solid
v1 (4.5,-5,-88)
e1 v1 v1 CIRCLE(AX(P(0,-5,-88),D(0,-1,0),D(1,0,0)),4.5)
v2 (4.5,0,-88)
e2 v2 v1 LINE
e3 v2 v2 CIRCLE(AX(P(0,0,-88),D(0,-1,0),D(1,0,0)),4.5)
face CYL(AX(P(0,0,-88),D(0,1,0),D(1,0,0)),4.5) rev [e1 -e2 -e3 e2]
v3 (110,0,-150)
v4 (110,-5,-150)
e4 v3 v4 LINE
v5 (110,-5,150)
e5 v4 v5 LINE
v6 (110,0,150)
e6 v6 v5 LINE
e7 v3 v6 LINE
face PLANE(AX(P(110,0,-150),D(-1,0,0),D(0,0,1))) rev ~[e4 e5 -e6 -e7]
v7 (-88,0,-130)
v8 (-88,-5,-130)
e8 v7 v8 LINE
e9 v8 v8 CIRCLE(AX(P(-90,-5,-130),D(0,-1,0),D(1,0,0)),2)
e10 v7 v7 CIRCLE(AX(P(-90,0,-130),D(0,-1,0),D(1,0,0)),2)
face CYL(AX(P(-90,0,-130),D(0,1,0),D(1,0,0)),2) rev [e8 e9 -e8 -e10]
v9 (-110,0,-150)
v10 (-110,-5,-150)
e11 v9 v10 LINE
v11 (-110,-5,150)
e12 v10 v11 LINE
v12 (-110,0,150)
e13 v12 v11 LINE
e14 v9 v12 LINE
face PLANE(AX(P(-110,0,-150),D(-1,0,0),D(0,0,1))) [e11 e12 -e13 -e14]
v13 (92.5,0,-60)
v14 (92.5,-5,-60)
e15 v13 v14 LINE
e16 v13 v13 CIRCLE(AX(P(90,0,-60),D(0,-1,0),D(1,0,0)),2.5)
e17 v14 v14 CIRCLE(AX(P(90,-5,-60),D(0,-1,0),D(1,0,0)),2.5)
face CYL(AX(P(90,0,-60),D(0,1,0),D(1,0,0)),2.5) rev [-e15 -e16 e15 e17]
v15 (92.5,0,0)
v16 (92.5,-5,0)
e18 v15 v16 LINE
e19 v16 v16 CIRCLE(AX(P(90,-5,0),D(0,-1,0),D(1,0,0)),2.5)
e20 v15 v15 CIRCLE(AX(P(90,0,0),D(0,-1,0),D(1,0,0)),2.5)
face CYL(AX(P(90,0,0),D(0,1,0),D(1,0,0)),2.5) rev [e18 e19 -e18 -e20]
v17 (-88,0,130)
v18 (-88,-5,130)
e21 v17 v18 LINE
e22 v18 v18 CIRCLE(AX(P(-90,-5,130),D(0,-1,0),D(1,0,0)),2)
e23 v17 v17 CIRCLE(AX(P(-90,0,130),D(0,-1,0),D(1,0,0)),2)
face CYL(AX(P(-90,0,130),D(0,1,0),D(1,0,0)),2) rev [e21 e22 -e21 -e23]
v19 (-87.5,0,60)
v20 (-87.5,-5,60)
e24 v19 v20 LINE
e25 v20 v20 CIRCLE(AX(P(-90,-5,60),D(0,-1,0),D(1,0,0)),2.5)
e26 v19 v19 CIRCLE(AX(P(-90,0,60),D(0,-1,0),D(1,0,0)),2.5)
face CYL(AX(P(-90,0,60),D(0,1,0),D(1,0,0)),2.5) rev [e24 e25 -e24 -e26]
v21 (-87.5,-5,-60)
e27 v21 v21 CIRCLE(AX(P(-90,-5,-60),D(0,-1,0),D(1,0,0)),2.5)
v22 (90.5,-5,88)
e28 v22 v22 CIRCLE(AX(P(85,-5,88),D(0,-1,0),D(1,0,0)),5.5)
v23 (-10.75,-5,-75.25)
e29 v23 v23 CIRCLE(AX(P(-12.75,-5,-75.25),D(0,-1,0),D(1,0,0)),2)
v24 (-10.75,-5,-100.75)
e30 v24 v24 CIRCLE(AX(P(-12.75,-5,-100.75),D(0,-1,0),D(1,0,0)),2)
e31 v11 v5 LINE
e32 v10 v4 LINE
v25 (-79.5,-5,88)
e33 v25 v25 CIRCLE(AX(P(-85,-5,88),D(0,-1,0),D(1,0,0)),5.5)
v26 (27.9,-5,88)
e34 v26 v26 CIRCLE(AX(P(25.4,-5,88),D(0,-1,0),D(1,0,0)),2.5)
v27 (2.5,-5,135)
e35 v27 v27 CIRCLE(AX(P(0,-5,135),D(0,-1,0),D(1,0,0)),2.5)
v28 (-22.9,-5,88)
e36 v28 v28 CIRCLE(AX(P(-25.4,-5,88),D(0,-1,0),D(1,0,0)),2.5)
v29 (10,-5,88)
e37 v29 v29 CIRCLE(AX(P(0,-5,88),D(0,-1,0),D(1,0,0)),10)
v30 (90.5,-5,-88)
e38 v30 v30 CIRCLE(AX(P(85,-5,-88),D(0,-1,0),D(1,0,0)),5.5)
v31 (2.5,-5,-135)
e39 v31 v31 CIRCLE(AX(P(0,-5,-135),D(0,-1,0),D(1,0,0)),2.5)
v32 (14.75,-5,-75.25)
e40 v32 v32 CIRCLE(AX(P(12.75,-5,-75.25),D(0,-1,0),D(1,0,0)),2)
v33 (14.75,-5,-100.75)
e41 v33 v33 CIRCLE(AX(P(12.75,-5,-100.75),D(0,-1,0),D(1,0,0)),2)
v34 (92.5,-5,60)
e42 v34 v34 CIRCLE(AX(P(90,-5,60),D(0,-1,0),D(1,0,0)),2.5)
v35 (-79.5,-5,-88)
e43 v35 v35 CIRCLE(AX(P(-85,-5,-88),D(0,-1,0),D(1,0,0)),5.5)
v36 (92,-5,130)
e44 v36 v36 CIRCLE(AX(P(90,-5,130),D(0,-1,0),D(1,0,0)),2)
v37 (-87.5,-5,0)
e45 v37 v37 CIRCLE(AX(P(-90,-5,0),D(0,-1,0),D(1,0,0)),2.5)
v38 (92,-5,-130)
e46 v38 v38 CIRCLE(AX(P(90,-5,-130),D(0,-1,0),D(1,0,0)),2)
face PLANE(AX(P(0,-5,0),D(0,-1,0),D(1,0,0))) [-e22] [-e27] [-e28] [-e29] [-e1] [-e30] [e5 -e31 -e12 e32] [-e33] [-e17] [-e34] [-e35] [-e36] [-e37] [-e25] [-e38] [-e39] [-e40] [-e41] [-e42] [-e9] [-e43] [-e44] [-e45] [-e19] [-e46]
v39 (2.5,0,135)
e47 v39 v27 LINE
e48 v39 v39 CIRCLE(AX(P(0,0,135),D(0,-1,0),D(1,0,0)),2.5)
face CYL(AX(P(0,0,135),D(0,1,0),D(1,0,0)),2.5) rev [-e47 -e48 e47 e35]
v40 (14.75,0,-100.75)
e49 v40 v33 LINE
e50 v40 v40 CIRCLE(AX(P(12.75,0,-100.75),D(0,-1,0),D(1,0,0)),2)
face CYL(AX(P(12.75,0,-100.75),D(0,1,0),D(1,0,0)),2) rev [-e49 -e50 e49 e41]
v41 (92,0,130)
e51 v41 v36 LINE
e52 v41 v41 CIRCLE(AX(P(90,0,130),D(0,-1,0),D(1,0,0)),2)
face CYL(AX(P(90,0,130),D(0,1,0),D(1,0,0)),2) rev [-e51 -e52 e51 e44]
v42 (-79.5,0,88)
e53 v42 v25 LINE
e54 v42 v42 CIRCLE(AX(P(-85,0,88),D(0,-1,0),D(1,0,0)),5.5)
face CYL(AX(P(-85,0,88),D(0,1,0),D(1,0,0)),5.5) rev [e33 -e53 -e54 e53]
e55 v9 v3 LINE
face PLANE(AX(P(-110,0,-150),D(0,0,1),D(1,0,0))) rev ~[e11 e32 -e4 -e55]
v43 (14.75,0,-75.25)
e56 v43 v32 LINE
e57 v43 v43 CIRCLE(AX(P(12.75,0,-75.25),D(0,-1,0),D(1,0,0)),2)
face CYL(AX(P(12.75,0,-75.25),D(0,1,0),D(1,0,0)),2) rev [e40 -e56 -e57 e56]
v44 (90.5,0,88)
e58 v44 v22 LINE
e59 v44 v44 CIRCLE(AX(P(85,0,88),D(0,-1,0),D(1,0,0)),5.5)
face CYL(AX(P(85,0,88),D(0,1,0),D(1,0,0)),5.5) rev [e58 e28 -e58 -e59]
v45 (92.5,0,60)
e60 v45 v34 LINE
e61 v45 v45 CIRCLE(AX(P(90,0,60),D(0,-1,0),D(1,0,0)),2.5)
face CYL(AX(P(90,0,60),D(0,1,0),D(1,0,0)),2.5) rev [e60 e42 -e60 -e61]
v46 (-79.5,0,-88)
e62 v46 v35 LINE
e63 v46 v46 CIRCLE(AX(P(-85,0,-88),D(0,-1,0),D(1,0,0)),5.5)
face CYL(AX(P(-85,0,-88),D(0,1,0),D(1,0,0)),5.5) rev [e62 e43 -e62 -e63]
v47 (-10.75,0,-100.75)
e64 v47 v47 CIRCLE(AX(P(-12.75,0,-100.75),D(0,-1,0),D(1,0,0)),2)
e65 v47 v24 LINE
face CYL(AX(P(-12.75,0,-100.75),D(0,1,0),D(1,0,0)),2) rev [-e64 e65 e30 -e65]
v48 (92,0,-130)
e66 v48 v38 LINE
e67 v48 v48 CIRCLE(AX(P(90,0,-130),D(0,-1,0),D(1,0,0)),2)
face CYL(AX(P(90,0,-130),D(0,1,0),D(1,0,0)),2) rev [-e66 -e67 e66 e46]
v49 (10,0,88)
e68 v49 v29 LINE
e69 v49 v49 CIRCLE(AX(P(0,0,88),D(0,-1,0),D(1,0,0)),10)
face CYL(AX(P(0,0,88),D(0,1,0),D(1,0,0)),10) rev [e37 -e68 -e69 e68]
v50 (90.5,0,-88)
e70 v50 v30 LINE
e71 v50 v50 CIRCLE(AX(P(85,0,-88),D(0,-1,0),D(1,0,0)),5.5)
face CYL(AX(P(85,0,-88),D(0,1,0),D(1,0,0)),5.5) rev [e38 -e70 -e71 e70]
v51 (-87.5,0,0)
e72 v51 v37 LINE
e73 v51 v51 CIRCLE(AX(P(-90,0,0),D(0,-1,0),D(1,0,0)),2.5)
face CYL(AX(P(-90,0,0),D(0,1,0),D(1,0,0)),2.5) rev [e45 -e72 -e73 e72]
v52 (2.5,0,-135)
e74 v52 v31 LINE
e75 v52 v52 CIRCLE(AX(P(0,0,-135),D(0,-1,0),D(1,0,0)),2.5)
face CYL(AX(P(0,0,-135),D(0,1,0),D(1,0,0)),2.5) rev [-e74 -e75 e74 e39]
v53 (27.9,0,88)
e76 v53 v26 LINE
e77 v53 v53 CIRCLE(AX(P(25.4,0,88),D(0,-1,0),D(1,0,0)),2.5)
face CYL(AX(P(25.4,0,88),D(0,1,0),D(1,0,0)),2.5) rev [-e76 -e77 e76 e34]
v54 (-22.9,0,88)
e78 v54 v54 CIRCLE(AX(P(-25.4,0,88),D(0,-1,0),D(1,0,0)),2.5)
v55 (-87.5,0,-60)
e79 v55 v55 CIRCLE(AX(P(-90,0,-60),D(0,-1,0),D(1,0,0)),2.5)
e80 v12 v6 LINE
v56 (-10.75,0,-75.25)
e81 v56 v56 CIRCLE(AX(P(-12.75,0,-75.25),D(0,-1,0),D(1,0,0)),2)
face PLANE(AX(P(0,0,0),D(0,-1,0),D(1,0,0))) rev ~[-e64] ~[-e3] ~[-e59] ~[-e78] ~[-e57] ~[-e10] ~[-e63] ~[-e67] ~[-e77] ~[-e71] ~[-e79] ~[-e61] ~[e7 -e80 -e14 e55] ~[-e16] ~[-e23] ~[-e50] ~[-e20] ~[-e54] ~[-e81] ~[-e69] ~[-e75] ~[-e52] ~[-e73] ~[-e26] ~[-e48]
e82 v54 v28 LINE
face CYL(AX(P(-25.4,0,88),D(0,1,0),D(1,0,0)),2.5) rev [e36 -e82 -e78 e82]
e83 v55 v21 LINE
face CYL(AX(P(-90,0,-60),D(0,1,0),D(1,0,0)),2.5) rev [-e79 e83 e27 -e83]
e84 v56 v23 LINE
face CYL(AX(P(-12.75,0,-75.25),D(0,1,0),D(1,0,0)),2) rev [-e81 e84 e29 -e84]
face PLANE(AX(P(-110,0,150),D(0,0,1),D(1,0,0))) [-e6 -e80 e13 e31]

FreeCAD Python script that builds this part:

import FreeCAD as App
import Part
import Sketcher

doc = App.newDocument("Part")
body = doc.addObject("PartDesign::Body", "Body")

# Sketch on XZ plane
sketch1 = body.newObject("Sketcher::SketchObject", "Sketch")
sketch1.AttachmentSupport = (doc.getObject("XZ_Plane"), [""])
sketch1.MapMode = "FlatFace"
sketch1.addGeometry(Part.LineSegment(App.Vector(-110, 150, 0), App.Vector(-110, -150, 0)), False)
sketch1.addGeometry(Part.LineSegment(App.Vector(-110, -150, 0), App.Vector(110, -150, 0)), False)
sketch1.addGeometry(Part.LineSegment(App.Vector(110, -150, 0), App.Vector(110, 150, 0)), False)
sketch1.addGeometry(Part.LineSegment(App.Vector(110, 150, 0), App.Vector(-110, 150, 0)), False)
sketch1.addGeometry(Part.Circle(App.Vector(-90, -130, 0), App.Vector(0, 0, 1), 2), False)
sketch1.addGeometry(Part.Circle(App.Vector(-85, -88, 0), App.Vector(0, 0, 1), 5.5), False)
sketch1.addGeometry(Part.Circle(App.Vector(-12.75, -100.75, 0), App.Vector(0, 0, 1), 2), False)
sketch1.addGeometry(Part.Circle(App.Vector(-12.75, -75.25, 0), App.Vector(0, 0, 1), 2), False)
sketch1.addGeometry(Part.Circle(App.Vector(-90, -60, 0), App.Vector(0, 0, 1), 2.5), False)
sketch1.addGeometry(Part.Circle(App.Vector(0, -135, 0), App.Vector(0, 0, 1), 2.5), False)
sketch1.addGeometry(Part.Circle(App.Vector(0, -88, 0), App.Vector(0, 0, 1), 4.5), False)
sketch1.addGeometry(Part.Circle(App.Vector(12.75, -100.75, 0), App.Vector(0, 0, 1), 2), False)
sketch1.addGeometry(Part.Circle(App.Vector(12.75, -75.25, 0), App.Vector(0, 0, 1), 2), False)
sketch1.addGeometry(Part.Circle(App.Vector(90, -130, 0), App.Vector(0, 0, 1), 2), False)
sketch1.addGeometry(Part.Circle(App.Vector(85, -88, 0), App.Vector(0, 0, 1), 5.5), False)
sketch1.addGeometry(Part.Circle(App.Vector(90, -60, 0), App.Vector(0, 0, 1), 2.5), False)
sketch1.addGeometry(Part.Circle(App.Vector(-90, 0, 0), App.Vector(0, 0, 1), 2.5), False)
sketch1.addGeometry(Part.Circle(App.Vector(-90, 60, 0), App.Vector(0, 0, 1), 2.5), False)
sketch1.addGeometry(Part.Circle(App.Vector(-85, 88, 0), App.Vector(0, 0, 1), 5.5), False)
sketch1.addGeometry(Part.Circle(App.Vector(-90, 130, 0), App.Vector(0, 0, 1), 2), False)
sketch1.addGeometry(Part.Circle(App.Vector(-25.4, 88, 0), App.Vector(0, 0, 1), 2.5), False)
sketch1.addGeometry(Part.Circle(App.Vector(90, 0, 0), App.Vector(0, 0, 1), 2.5), False)
sketch1.addGeometry(Part.Circle(App.Vector(90, 60, 0), App.Vector(0, 0, 1), 2.5), False)
sketch1.addGeometry(Part.Circle(App.Vector(0, 88, 0), App.Vector(0, 0, 1), 10), False)
sketch1.addGeometry(Part.Circle(App.Vector(25.4, 88, 0), App.Vector(0, 0, 1), 2.5), False)
sketch1.addGeometry(Part.Circle(App.Vector(0, 135, 0), App.Vector(0, 0, 1), 2.5), False)
sketch1.addGeometry(Part.Circle(App.Vector(85, 88, 0), App.Vector(0, 0, 1), 5.5), False)
sketch1.addGeometry(Part.Circle(App.Vector(90, 130, 0), App.Vector(0, 0, 1), 2), False)
sketch1.addConstraint(Sketcher.Constraint("Coincident", 0, 2, 1, 1))
sketch1.addConstraint(Sketcher.Constraint("Coincident", 1, 2, 2, 1))
sketch1.addConstraint(Sketcher.Constraint("Coincident", 2, 2, 3, 1))
sketch1.addConstraint(Sketcher.Constraint("Coincident", 3, 2, 0, 1))
sketch1.addConstraint(Sketcher.Constraint("Vertical", 0))
sketch1.addConstraint(Sketcher.Constraint("Horizontal", 1))
sketch1.addConstraint(Sketcher.Constraint("Vertical", 2))
sketch1.addConstraint(Sketcher.Constraint("Horizontal", 3))
sketch1.addConstraint(Sketcher.Constraint("Equal", 4, 6))
sketch1.addConstraint(Sketcher.Constraint("Equal", 6, 7))
sketch1.addConstraint(Sketcher.Constraint("Equal", 8, 9))
sketch1.addConstraint(Sketcher.Constraint("Equal", 7, 11))
sketch1.addConstraint(Sketcher.Constraint("Equal", 11, 12))
sketch1.addConstraint(Sketcher.Constraint("Equal", 12, 13))
sketch1.addConstraint(Sketcher.Constraint("Equal", 5, 14))
sketch1.addConstraint(Sketcher.Constraint("Equal", 9, 15))
sketch1.addConstraint(Sketcher.Constraint("Equal", 15, 16))
sketch1.addConstraint(Sketcher.Constraint("Equal", 16, 17))
sketch1.addConstraint(Sketcher.Constraint("Equal", 14, 18))
sketch1.addConstraint(Sketcher.Constraint("Equal", 13, 19))
sketch1.addConstraint(Sketcher.Constraint("Equal", 17, 20))
sketch1.addConstraint(Sketcher.Constraint("Equal", 20, 21))
sketch1.addConstraint(Sketcher.Constraint("Equal", 21, 22))
sketch1.addConstraint(Sketcher.Constraint("Equal", 22, 24))
sketch1.addConstraint(Sketcher.Constraint("Equal", 24, 25))
sketch1.addConstraint(Sketcher.Constraint("Equal", 18, 26))
sketch1.addConstraint(Sketcher.Constraint("Equal", 19, 27))
sketch1.addConstraint(Sketcher.Constraint("Symmetric", 15, 3, 17, 3, -1, 1))
sketch1.addConstraint(Sketcher.Constraint("Symmetric", 14, 3, 18, 3, -1, 1))
sketch1.addConstraint(Sketcher.Constraint("Symmetric", 13, 3, 19, 3, -1, 1))
sketch1.addConstraint(Sketcher.Constraint("Symmetric", 16, 3, 21, 3, -1, 1))
sketch1.addConstraint(Sketcher.Constraint("Symmetric", 8, 3, 22, 3, -1, 1))
sketch1.addConstraint(Sketcher.Constraint("Symmetric", 10, 3, 23, 3, -1, 1))
sketch1.addConstraint(Sketcher.Constraint("Symmetric", 9, 3, 25, 3, -1, 1))
sketch1.addConstraint(Sketcher.Constraint("Symmetric", 5, 3, 26, 3, -1, 1))
sketch1.addConstraint(Sketcher.Constraint("Symmetric", 4, 3, 27, 3, -1, 1))
sketch1.addConstraint(Sketcher.Constraint("Symmetric", 0, 2, 2, 2, -1, 1))
sketch1.addConstraint(Sketcher.Constraint("Symmetric", 6, 3, 11, 3, -2))
sketch1.addConstraint(Sketcher.Constraint("Symmetric", 7, 3, 12, 3, -2))
sketch1.addConstraint(Sketcher.Constraint("Symmetric", 4, 3, 13, 3, -2))
sketch1.addConstraint(Sketcher.Constraint("Symmetric", 5, 3, 14, 3, -2))
sketch1.addConstraint(Sketcher.Constraint("Symmetric", 8, 3, 15, 3, -2))
sketch1.addConstraint(Sketcher.Constraint("Symmetric", 20, 3, 24, 3, -2))
sketch1.addConstraint(Sketcher.Constraint("PointOnObject", 9, 3, -2))
sketch1.addConstraint(Sketcher.Constraint("PointOnObject", 10, 3, -2))
sketch1.addConstraint(Sketcher.Constraint("PointOnObject", 16, 3, -1))
sketch1.addConstraint(Sketcher.Constraint("Horizontal", 5, 3, 10, 3))
sketch1.addConstraint(Sketcher.Constraint("Horizontal", 18, 3, 20, 3))
sketch1.addConstraint(Sketcher.Constraint("Vertical", 6, 3, 7, 3))
sketch1.addConstraint(Sketcher.Constraint("Vertical", 4, 3, 8, 3))
sketch1.addConstraint(Sketcher.Constraint("Vertical", 8, 3, 16, 3))
sketch1.addConstraint(Sketcher.Constraint("Diameter", 4, 4.0))
sketch1.addConstraint(Sketcher.Constraint("Diameter", 5, 11.0))
sketch1.addConstraint(Sketcher.Constraint("Diameter", 8, 5.0))
sketch1.addConstraint(Sketcher.Constraint("Diameter", 10, 9.0))
sketch1.addConstraint(Sketcher.Constraint("Diameter", 23, 20.0))
sketch1.addConstraint(Sketcher.Constraint("DistanceX", 1, 1, 1, 2, 220.0))
sketch1.addConstraint(Sketcher.Constraint("DistanceY", 0, 2, 0, 1, 300.0))
sketch1.addConstraint(Sketcher.Constraint("DistanceX", 4, 3, -1, 1, 90.0))
sketch1.addConstraint(Sketcher.Constraint("DistanceY", 4, 3, -1, 1, 130.0))
sketch1.addConstraint(Sketcher.Constraint("DistanceX", 5, 3, -1, 1, 85.0))
sketch1.addConstraint(Sketcher.Constraint("DistanceY", 5, 3, -1, 1, 88.0))
sketch1.addConstraint(Sketcher.Constraint("DistanceY", 8, 3, -1, 1, 60.0))
sketch1.addConstraint(Sketcher.Constraint("DistanceY", 9, 3, -1, 1, 135.0))
sketch1.addConstraint(Sketcher.Constraint("DistanceX", 20, 3, -1, 1, 25.4))
sketch1.addConstraint(Sketcher.Constraint("DistanceY", 6, 3, 7, 3, 25.5))
sketch1.addConstraint(Sketcher.Constraint("DistanceX", 6, 3, 11, 3, 25.5))
sketch1.addConstraint(Sketcher.Constraint("DistanceY", 6, 3, -1, 1, 100.75))
pad1 = body.newObject("PartDesign::Pad", "Pad")
pad1.Profile = sketch1
pad1.Length = 5

doc.recompute()
